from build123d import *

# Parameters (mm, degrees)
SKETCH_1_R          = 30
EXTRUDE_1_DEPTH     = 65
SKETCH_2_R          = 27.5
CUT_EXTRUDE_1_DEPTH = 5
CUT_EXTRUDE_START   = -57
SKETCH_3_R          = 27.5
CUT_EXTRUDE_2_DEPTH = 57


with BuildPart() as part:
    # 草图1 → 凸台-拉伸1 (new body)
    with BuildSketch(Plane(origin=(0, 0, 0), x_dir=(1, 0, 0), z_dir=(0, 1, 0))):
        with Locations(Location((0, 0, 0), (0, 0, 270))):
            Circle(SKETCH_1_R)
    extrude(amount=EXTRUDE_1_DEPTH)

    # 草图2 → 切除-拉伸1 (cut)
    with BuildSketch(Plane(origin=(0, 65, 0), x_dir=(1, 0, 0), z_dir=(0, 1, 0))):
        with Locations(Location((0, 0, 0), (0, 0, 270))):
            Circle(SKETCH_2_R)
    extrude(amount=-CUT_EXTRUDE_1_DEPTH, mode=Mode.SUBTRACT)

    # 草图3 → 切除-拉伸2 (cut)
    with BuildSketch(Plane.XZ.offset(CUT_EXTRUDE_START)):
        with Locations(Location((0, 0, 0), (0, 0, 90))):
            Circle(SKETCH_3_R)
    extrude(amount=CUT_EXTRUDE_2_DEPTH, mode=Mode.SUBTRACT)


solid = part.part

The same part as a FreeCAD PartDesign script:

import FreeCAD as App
import Part
import Sketcher
from FreeCAD import Vector
Q = App.Units.Quantity

doc = App.newDocument("Part")
body = doc.addObject("PartDesign::Body", "Body")

# Sketch on XZ plane
sketch1 = body.newObject("Sketcher::SketchObject", "Sketch")
sketch1.AttachmentSupport = (doc.getObject("XZ_Plane"), [""])
sketch1.MapMode = "FlatFace"
sketch1.addGeometry(Part.Circle(Vector(0, 0, 0), Vector(0, 0, 1), 30), False)
sketch1.addConstraint([
    Sketcher.Constraint("Coincident", 0, 3, -1, 1),
    Sketcher.Constraint("Diameter", 0, Q("60 mm")),
])
pad1 = body.newObject("PartDesign::Pad", "Pad")
pad1.Profile = sketch1
pad1.Length = 65
pad1.Reversed = True

# Sketch on XZ plane
sketch2 = body.newObject("Sketcher::SketchObject", "Sketch001")
sketch2.AttachmentSupport = (doc.getObject("XZ_Plane"), [""])
sketch2.MapMode = "FlatFace"
sketch2.AttachmentOffset = App.Placement(Vector(0, 0, -65), App.Rotation())
sketch2.addGeometry(Part.Circle(Vector(0, 0, 0), Vector(0, 0, 1), 28), False)
sketch2.addConstraint([
    Sketcher.Constraint("Coincident", 0, 3, -1, 1),
    Sketcher.Constraint("Diameter", 0, Q("55 mm")),
])
pocket1 = body.newObject("PartDesign::Pocket", "Pocket")
pocket1.Profile = sketch2
pocket1.Length = 5
pocket1.Reversed = True

# Sketch on XZ plane
sketch3 = body.newObject("Sketcher::SketchObject", "Sketch002")
sketch3.AttachmentSupport = (doc.getObject("XZ_Plane"), [""])
sketch3.MapMode = "FlatFace"
sketch3.AttachmentOffset = App.Placement(Vector(0, 0, -57), App.Rotation())
sketch3.addGeometry(Part.Circle(Vector(0, 0, 0), Vector(0, 0, 1), 28), False)
sketch3.addConstraint([
    Sketcher.Constraint("Coincident", 0, 3, -1, 1),
    Sketcher.Constraint("Diameter", 0, Q("55 mm")),
])
pocket2 = body.newObject("PartDesign::Pocket", "Pocket001")
pocket2.Profile = sketch3
pocket2.Length = 57
pocket2.Reversed = True

doc.recompute()
